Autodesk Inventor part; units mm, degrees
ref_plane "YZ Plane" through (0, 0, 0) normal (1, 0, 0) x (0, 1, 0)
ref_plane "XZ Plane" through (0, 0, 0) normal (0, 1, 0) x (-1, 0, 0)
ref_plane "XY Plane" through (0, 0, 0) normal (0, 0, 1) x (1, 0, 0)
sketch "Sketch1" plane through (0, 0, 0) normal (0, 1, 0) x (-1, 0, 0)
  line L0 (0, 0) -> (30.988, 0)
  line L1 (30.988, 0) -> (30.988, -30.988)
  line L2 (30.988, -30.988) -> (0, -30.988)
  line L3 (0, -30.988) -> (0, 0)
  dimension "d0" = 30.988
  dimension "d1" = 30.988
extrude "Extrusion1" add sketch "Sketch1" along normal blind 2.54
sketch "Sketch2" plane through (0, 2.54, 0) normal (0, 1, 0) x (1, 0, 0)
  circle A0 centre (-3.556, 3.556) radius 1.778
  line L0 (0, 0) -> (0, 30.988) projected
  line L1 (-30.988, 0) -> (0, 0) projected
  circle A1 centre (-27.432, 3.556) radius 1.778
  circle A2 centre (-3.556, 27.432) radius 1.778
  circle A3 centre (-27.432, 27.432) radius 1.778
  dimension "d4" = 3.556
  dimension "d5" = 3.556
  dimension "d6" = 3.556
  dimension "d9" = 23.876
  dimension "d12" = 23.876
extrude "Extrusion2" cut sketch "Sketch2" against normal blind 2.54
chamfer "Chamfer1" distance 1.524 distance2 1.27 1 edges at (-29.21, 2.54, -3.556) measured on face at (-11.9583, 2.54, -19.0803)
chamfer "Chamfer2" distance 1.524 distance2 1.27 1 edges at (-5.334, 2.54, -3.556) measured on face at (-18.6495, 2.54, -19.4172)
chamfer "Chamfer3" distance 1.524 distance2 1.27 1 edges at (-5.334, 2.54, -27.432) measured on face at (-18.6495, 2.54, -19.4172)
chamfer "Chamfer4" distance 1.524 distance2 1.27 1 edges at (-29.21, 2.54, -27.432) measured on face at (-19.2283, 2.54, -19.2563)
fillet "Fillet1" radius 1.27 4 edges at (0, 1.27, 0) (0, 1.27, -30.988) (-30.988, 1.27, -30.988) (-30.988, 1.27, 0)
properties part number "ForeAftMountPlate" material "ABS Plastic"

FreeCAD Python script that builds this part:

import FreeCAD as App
import Part
import Sketcher

V = App.Vector
Q = App.Units.Quantity


def edges_at(feature, points):
    """Names of the edges that pass closest to the given points."""
    edges = feature.Shape.Edges
    near = lambda p: min(range(len(edges)), key=lambda i: edges[i].distToShape(Part.Vertex(*p))[0])
    return sorted({f"Edge{near(p) + 1}" for p in points})


def add_polygon(sketch, points):
    """Adds a closed chain of lines whose ends are joined by coincident constraints."""
    first, n = sketch.GeometryCount, len(points)
    for a, b in zip(points, points[1:] + points[:1]):
        sketch.addGeometry(Part.LineSegment(App.Vector(*a, 0), App.Vector(*b, 0)), False)
    for i in range(n):
        sketch.addConstraint(Sketcher.Constraint("Coincident", first + i, 2, first + (i + 1) % n, 1))

doc = App.newDocument("Part")
body = doc.addObject("PartDesign::Body", "Body")

# Sketch on XZ plane
sketch1 = body.newObject("Sketcher::SketchObject", "Sketch")
sketch1.AttachmentSupport = (doc.getObject("XZ_Plane"), [""])
sketch1.MapMode = "FlatFace"
add_polygon(sketch1, [(-31, 0), (0, 0), (0, -31), (-31, -31)])  # lines 0-3
sketch1.addConstraint([
    Sketcher.Constraint("Horizontal", 0),
    Sketcher.Constraint("Vertical", 1),
    Sketcher.Constraint("Horizontal", 2),
    Sketcher.Constraint("Vertical", 3),
    Sketcher.Constraint("Coincident", 0, 2, -1, 1),
    Sketcher.Constraint("Equal", 2, 1),
    Sketcher.Constraint("DistanceX", 0, 1, 0, 2, Q("1.22 in")),
])
pad1 = body.newObject("PartDesign::Pad", "Pad")
pad1.Profile = sketch1
pad1.Length = Q("0.1 in")
pad1.Reversed = True

# Sketch on XZ plane
sketch2 = body.newObject("Sketcher::SketchObject", "Sketch001")
sketch2.AttachmentSupport = (doc.getObject("XZ_Plane"), [""])
sketch2.MapMode = "FlatFace"
sketch2.AttachmentOffset = App.Placement(V(0, 0, -0.1 * 25.4), App.Rotation())
sketch2.addGeometry([
    Part.Circle(V(-3.6, -3.6, 0), V(0, 0, 1), 1.8),
    Part.Circle(V(-27.4, -3.6, 0), V(0, 0, 1), 1.8),
    Part.Circle(V(-3.6, -27.4, 0), V(0, 0, 1), 1.8),
    Part.Circle(V(-27.4, -27.4, 0), V(0, 0, 1), 1.8),
], False)
sketch2.addConstraint([
    Sketcher.Constraint("Equal", 0, 1),
    Sketcher.Constraint("Equal", 1, 2),
    Sketcher.Constraint("Equal", 2, 3),
    Sketcher.Constraint("Horizontal", 0, 3, 1, 3),
    Sketcher.Constraint("Horizontal", 2, 3, 3, 3),
    Sketcher.Constraint("Vertical", 0, 3, 2, 3),
    Sketcher.Constraint("Vertical", 1, 3, 3, 3),
    Sketcher.Constraint("Diameter", 0, Q("0.14 in")),
    Sketcher.Constraint("DistanceX", 0, 3, -1, 1, Q("0.14 in")),
    Sketcher.Constraint("DistanceY", 0, 3, -1, 1, Q("0.14 in")),
    Sketcher.Constraint("DistanceX", 1, 3, 0, 3, Q("0.94 in")),
    Sketcher.Constraint("DistanceY", 2, 3, 0, 3, Q("0.94 in")),
])
pocket1 = body.newObject("PartDesign::Pocket", "Pocket")
pocket1.Profile = sketch2
pocket1.Length = Q("0.1 in")
pocket1.Reversed = True
doc.recompute()

chamfer = body.newObject("PartDesign::Chamfer", "Chamfer")
chamfer.Base = (pocket1, edges_at(pocket1, [(-29.21, 2.54, -3.556)]))
chamfer.ChamferType = "Two distances"
chamfer.Size = Q("0.06 in")
chamfer.Size2 = Q("0.05 in")
doc.recompute()

chamfer2 = body.newObject("PartDesign::Chamfer", "Chamfer001")
chamfer2.Base = (chamfer, edges_at(chamfer, [(-5.334, 2.54, -3.556)]))
chamfer2.ChamferType = "Two distances"
chamfer2.Size = Q("0.06 in")
chamfer2.Size2 = Q("0.05 in")
doc.recompute()

chamfer3 = body.newObject("PartDesign::Chamfer", "Chamfer002")
chamfer3.Base = (chamfer2, edges_at(chamfer2, [(-5.334, 2.54, -27.432)]))
chamfer3.ChamferType = "Two distances"
chamfer3.Size = Q("0.06 in")
chamfer3.Size2 = Q("0.05 in")
doc.recompute()

chamfer4 = body.newObject("PartDesign::Chamfer", "Chamfer003")
chamfer4.Base = (chamfer3, edges_at(chamfer3, [(-29.21, 2.54, -27.432)]))
chamfer4.ChamferType = "Two distances"
chamfer4.Size = Q("0.06 in")
chamfer4.Size2 = Q("0.05 in")
doc.recompute()

fillet = body.newObject("PartDesign::Fillet", "Fillet")
fillet.Base = (chamfer4, edges_at(chamfer4, [
    (0, 1.27, 0),
    (0, 1.27, -30.988),
    (-30.988, 1.27, -30.988),
    (-30.988, 1.27, 0),
]))
fillet.Radius = Q("0.05 in")

doc.recompute()
